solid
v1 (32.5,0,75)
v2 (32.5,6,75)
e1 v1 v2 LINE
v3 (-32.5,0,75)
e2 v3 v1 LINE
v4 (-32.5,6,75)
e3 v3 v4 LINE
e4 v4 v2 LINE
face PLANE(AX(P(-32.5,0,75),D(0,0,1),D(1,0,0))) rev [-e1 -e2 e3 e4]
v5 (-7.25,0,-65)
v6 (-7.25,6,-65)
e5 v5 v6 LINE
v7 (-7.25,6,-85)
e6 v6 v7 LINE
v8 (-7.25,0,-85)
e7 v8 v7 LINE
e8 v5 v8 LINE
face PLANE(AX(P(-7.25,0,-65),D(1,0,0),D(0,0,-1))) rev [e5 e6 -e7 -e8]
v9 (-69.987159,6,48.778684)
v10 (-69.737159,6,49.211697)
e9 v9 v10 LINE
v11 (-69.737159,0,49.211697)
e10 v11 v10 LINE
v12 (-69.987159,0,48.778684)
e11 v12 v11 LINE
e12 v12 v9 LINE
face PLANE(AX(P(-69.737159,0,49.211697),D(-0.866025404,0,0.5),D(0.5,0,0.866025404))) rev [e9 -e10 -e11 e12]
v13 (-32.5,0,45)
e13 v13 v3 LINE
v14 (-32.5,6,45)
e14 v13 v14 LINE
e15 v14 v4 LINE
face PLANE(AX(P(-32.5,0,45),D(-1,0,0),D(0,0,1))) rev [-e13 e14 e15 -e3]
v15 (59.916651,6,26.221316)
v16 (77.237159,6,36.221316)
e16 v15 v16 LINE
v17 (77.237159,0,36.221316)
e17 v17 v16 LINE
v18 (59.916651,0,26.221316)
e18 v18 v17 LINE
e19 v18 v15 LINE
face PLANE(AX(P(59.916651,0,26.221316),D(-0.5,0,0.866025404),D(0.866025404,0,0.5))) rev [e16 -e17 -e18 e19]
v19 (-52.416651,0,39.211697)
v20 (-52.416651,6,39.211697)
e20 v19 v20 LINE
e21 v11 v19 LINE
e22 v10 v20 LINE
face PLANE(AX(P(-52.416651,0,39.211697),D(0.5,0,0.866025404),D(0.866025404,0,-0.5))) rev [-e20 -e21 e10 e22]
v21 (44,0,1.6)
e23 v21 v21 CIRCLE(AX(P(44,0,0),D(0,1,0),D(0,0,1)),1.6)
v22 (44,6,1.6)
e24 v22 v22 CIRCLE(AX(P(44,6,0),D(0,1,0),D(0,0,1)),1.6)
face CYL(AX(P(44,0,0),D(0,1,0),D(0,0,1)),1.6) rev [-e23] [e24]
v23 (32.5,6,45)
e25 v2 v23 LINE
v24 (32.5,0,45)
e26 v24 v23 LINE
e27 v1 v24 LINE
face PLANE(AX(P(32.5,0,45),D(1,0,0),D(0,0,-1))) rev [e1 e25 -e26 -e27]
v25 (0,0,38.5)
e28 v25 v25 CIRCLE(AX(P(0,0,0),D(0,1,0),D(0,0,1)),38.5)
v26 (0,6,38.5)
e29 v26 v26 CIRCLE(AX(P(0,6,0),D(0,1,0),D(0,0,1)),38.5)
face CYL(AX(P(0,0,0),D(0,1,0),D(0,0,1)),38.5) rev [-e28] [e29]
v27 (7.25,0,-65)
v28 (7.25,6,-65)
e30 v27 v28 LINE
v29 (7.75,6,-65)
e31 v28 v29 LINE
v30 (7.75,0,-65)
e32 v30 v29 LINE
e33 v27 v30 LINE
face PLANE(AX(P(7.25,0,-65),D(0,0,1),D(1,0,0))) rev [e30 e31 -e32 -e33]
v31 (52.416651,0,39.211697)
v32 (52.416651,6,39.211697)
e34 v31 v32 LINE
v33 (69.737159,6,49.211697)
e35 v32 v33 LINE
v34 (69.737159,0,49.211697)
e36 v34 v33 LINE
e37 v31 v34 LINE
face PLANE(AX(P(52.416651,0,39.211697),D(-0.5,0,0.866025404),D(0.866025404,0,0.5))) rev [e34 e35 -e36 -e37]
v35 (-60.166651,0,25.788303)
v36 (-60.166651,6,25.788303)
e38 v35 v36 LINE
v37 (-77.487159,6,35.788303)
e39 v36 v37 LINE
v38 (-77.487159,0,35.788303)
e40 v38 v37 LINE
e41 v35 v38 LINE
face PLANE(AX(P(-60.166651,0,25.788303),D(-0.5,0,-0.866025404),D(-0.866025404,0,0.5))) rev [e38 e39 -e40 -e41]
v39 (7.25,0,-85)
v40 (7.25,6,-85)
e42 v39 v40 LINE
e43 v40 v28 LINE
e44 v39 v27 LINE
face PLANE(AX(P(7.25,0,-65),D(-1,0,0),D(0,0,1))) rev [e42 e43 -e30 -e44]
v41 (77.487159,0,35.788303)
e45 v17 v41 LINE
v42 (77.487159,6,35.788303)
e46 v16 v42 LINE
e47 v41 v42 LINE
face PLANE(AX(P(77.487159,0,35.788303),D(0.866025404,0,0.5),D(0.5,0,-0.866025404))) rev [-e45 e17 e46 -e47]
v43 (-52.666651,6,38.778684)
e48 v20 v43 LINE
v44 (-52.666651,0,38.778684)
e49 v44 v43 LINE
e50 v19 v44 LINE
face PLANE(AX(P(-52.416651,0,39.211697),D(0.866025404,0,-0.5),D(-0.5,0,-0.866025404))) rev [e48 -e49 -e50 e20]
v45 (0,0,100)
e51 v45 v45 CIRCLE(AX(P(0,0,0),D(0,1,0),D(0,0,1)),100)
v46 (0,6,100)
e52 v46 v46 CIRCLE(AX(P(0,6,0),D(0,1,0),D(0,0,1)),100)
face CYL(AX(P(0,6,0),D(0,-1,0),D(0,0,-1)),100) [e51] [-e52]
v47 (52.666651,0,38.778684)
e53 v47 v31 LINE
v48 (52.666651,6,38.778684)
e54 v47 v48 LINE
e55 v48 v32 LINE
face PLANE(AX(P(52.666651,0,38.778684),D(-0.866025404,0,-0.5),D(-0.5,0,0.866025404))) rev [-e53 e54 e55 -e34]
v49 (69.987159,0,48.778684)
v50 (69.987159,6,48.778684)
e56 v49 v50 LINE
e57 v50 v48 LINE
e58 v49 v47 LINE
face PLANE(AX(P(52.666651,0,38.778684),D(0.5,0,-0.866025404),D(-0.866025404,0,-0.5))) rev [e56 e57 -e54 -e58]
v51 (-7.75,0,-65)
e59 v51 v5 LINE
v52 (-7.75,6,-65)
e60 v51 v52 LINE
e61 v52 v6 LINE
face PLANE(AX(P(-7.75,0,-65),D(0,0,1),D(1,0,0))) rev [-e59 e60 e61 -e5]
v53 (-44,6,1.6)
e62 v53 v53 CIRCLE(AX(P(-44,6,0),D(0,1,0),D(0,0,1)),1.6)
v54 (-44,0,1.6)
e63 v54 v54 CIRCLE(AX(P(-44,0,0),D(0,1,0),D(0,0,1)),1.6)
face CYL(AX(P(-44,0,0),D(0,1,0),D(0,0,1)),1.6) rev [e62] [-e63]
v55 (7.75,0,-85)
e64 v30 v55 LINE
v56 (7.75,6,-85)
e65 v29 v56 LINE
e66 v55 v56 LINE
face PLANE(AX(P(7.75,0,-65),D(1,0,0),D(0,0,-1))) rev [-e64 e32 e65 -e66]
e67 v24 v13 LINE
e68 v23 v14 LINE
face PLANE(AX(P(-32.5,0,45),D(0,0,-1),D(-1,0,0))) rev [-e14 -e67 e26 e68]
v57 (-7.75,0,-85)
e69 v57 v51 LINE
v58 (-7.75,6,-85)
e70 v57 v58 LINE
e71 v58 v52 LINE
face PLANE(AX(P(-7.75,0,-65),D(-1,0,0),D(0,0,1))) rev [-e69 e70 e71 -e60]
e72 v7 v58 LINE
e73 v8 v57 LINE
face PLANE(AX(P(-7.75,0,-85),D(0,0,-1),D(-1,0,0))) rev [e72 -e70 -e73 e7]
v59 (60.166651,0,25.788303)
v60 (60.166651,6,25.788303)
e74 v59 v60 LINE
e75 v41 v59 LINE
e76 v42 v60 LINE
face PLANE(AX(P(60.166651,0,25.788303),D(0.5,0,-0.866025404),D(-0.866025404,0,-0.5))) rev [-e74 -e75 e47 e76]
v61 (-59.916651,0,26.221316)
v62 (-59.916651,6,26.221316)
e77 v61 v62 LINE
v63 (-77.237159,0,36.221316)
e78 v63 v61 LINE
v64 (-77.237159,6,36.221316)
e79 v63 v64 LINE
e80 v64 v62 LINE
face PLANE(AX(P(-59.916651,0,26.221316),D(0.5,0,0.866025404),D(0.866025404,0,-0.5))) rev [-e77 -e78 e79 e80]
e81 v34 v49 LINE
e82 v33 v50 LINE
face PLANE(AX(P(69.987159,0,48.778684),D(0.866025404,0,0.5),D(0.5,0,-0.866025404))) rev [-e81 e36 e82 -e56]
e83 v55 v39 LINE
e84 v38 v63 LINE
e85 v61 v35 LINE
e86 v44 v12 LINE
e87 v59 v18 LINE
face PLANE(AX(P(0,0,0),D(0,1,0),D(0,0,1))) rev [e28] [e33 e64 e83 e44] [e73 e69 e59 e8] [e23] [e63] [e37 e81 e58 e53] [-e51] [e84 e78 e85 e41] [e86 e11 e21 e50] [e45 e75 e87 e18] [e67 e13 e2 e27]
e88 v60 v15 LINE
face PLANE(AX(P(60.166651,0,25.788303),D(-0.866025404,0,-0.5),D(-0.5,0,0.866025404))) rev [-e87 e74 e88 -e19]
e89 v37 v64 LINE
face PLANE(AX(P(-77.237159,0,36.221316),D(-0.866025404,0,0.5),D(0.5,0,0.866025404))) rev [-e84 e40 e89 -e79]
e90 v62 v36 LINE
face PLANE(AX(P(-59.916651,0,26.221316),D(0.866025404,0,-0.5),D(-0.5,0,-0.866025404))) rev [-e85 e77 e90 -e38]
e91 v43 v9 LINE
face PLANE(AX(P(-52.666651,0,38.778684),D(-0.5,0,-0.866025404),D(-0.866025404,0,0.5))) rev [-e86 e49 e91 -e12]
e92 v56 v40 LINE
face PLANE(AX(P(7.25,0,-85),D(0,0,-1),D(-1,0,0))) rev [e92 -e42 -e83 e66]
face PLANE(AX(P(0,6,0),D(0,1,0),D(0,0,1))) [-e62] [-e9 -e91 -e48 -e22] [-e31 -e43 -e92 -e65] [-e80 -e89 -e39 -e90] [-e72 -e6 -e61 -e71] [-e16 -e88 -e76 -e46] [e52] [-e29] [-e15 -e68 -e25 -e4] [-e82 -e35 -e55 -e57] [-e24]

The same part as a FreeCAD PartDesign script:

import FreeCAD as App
import Part
import Sketcher

V = App.Vector
Q = App.Units.Quantity

doc = App.newDocument("Part")
body = doc.addObject("PartDesign::Body", "Body")

# Sketch on XZ plane
sketch1 = body.newObject("Sketcher::SketchObject", "Sketch")
sketch1.AttachmentSupport = (doc.getObject("XZ_Plane"), [""])
sketch1.MapMode = "FlatFace"
sketch1.addGeometry(Part.Circle(V(0, 0, 0), V(0, 0, 1), 100), False)
sketch1.addConstraint([
    Sketcher.Constraint("Coincident", 0, 3, -1, 1),
    Sketcher.Constraint("Diameter", 0, 200.0),
])
pad1 = body.newObject("PartDesign::Pad", "Pad")
pad1.Profile = sketch1
pad1.Length = 6
pad1.Reversed = True

# Sketch on XZ plane
sketch2 = body.newObject("Sketcher::SketchObject", "Sketch001")
sketch2.AttachmentSupport = (doc.getObject("XZ_Plane"), [""])
sketch2.MapMode = "FlatFace"
sketch2.AttachmentOffset = App.Placement(V(0, 0, -6), App.Rotation())
sketch2.addGeometry([
    Part.LineSegment(V(-7.8, -85, 0), V(-7.8, -65, 0)),  # 0
    Part.LineSegment(V(-7.8, -65, 0), V(-7.2, -65, 0)),  # 1
    Part.LineSegment(V(-7.2, -65, 0), V(-7.2, -85, 0)),  # 2
    Part.LineSegment(V(-7.2, -85, 0), V(-7.8, -85, 0)),  # 3
    Part.LineSegment(V(7.2, -85, 0), V(7.2, -65, 0)),  # 4
    Part.LineSegment(V(7.2, -65, 0), V(7.8, -65, 0)),  # 5
    Part.LineSegment(V(7.8, -65, 0), V(7.8, -85, 0)),  # 6
    Part.LineSegment(V(7.8, -85, 0), V(7.2, -85, 0)),  # 7
    Part.LineSegment(V(77.5, 35.8, 0), V(60.2, 25.8, 0)),  # 8
    Part.LineSegment(V(60.2, 25.8, 0), V(59.9, 26.2, 0)),  # 9
    Part.LineSegment(V(59.9, 26.2, 0), V(77.2, 36.2, 0)),  # 10
    Part.LineSegment(V(77.2, 36.2, 0), V(77.5, 35.8, 0)),  # 11
    Part.LineSegment(V(70, 48.8, 0), V(52.7, 38.8, 0)),  # 12
    Part.LineSegment(V(52.7, 38.8, 0), V(52.4, 39.2, 0)),  # 13
    Part.LineSegment(V(52.4, 39.2, 0), V(69.7, 49.2, 0)),  # 14
    Part.LineSegment(V(69.7, 49.2, 0), V(70, 48.8, 0)),  # 15
    Part.LineSegment(V(-69.7, 49.2, 0), V(-52.4, 39.2, 0)),  # 16
    Part.LineSegment(V(-52.4, 39.2, 0), V(-52.7, 38.8, 0)),  # 17
    Part.LineSegment(V(-52.7, 38.8, 0), V(-70, 48.8, 0)),  # 18
    Part.LineSegment(V(-70, 48.8, 0), V(-69.7, 49.2, 0)),  # 19
    Part.LineSegment(V(-77.2, 36.2, 0), V(-59.9, 26.2, 0)),  # 20
    Part.LineSegment(V(-59.9, 26.2, 0), V(-60.2, 25.8, 0)),  # 21
    Part.LineSegment(V(-60.2, 25.8, 0), V(-77.5, 35.8, 0)),  # 22
    Part.LineSegment(V(-77.5, 35.8, 0), V(-77.2, 36.2, 0)),  # 23
], False)
sketch2.addConstraint([
    Sketcher.Constraint("Coincident", 0, 2, 1, 1),
    Sketcher.Constraint("Coincident", 1, 2, 2, 1),
    Sketcher.Constraint("Coincident", 2, 2, 3, 1),
    Sketcher.Constraint("Coincident", 3, 2, 0, 1),
    Sketcher.Constraint("Coincident", 4, 2, 5, 1),
    Sketcher.Constraint("Coincident", 5, 2, 6, 1),
    Sketcher.Constraint("Coincident", 6, 2, 7, 1),
    Sketcher.Constraint("Coincident", 7, 2, 4, 1),
    Sketcher.Constraint("Coincident", 8, 2, 9, 1),
    Sketcher.Constraint("Coincident", 9, 2, 10, 1),
    Sketcher.Constraint("Coincident", 10, 2, 11, 1),
    Sketcher.Constraint("Coincident", 11, 2, 8, 1),
    Sketcher.Constraint("Coincident", 12, 2, 13, 1),
    Sketcher.Constraint("Coincident", 13, 2, 14, 1),
    Sketcher.Constraint("Coincident", 14, 2, 15, 1),
    Sketcher.Constraint("Coincident", 15, 2, 12, 1),
    Sketcher.Constraint("Coincident", 16, 2, 17, 1),
    Sketcher.Constraint("Coincident", 17, 2, 18, 1),
    Sketcher.Constraint("Coincident", 18, 2, 19, 1),
    Sketcher.Constraint("Coincident", 19, 2, 16, 1),
    Sketcher.Constraint("Coincident", 20, 2, 21, 1),
    Sketcher.Constraint("Coincident", 21, 2, 22, 1),
    Sketcher.Constraint("Coincident", 22, 2, 23, 1),
    Sketcher.Constraint("Coincident", 23, 2, 20, 1),
    Sketcher.Constraint("Vertical", 0),
    Sketcher.Constraint("Horizontal", 1),
    Sketcher.Constraint("Vertical", 2),
    Sketcher.Constraint("Horizontal", 3),
    Sketcher.Constraint("Vertical", 4),
    Sketcher.Constraint("Horizontal", 5),
    Sketcher.Constraint("Vertical", 6),
    Sketcher.Constraint("Horizontal", 7),
    Sketcher.Constraint("Symmetric", 1, 2, 4, 2, -2),
    Sketcher.Constraint("Symmetric", 3, 2, 6, 2, -2),
    Sketcher.Constraint("Symmetric", 13, 2, 16, 2, -2),
    Sketcher.Constraint("Symmetric", 12, 2, 17, 2, -2),
    Sketcher.Constraint("Symmetric", 15, 2, 18, 2, -2),
    Sketcher.Constraint("Symmetric", 14, 2, 19, 2, -2),
    Sketcher.Constraint("Symmetric", 9, 2, 20, 2, -2),
    Sketcher.Constraint("Symmetric", 8, 2, 21, 2, -2),
    Sketcher.Constraint("Symmetric", 11, 2, 22, 2, -2),
    Sketcher.Constraint("Symmetric", 10, 2, 23, 2, -2),
    Sketcher.Constraint("Perpendicular", 8, 9),
    Sketcher.Constraint("Perpendicular", 9, 10),
    Sketcher.Constraint("Perpendicular", 10, 11),
    Sketcher.Constraint("Perpendicular", 11, 12),
    Sketcher.Constraint("Perpendicular", 12, 13),
    Sketcher.Constraint("Perpendicular", 13, 14),
    Sketcher.Constraint("Perpendicular", 14, 15),
    Sketcher.Constraint("Equal", 10, 12),
    Sketcher.Constraint("Equal", 11, 13),
    Sketcher.Constraint("DistanceY", 0, 1, 0, 2, 20.0),
    Sketcher.Constraint("Angle", 8, Q("-150 deg")),
    Sketcher.Constraint("Distance", 8, 20.0),
    Sketcher.Constraint("DistanceX", 1, 1, 1, 2, 0.5),
    Sketcher.Constraint("DistanceY", 0, 2, -1, 1, 65.0),
    Sketcher.Constraint("DistanceX", 0, 2, 4, 2, 15.0),
    Sketcher.Constraint("Distance", 9, 0.5),
    Sketcher.Constraint("DistanceX", 12, 2, 8, 2, 7.5),
    Sketcher.Constraint("DistanceX", -1, 1, 8, 2, 60.166651),
    Sketcher.Constraint("DistanceY", 9, 2, 12, 2, 12.557368),
    Sketcher.Constraint("DistanceY", -1, 1, 8, 2, 25.788303),
])
pocket1 = body.newObject("PartDesign::Pocket", "Pocket")
pocket1.Profile = sketch2
pocket1.Type = "ThroughAll"
pocket1.Reversed = True

# Sketch on XZ plane
sketch3 = body.newObject("Sketcher::SketchObject", "Sketch002")
sketch3.AttachmentSupport = (doc.getObject("XZ_Plane"), [""])
sketch3.MapMode = "FlatFace"
sketch3.AttachmentOffset = App.Placement(V(0, 0, -6), App.Rotation())
sketch3.addGeometry(Part.Circle(V(0, 0, 0), V(0, 0, 1), 38), False)
sketch3.addConstraint([
    Sketcher.Constraint("Coincident", 0, 3, -1, 1),
    Sketcher.Constraint("Diameter", 0, 77.0),
])
pocket2 = body.newObject("PartDesign::Pocket", "Pocket001")
pocket2.Profile = sketch3
pocket2.Type = "ThroughAll"
pocket2.Reversed = True

# Sketch on XZ plane
sketch4 = body.newObject("Sketcher::SketchObject", "Sketch003")
sketch4.AttachmentSupport = (doc.getObject("XZ_Plane"), [""])
sketch4.MapMode = "FlatFace"
sketch4.AttachmentOffset = App.Placement(V(0, 0, -6), App.Rotation())
sketch4.addGeometry([
    Part.Circle(V(-44, 0, 0), V(0, 0, 1), 1.6),
    Part.Circle(V(44, 0, 0), V(0, 0, 1), 1.6),
], False)
sketch4.addConstraint([
    Sketcher.Constraint("Equal", 0, 1),
    Sketcher.Constraint("Symmetric", 0, 3, 1, 3, -1, 1),
    Sketcher.Constraint("PointOnObject", 0, 3, -1),
    Sketcher.Constraint("Diameter", 0, 3.2),
    Sketcher.Constraint("DistanceX", 0, 3, -1, 1, 44.0),
])
pocket3 = body.newObject("PartDesign::Pocket", "Pocket002")
pocket3.Profile = sketch4
pocket3.Type = "ThroughAll"
pocket3.Reversed = True

# Sketch on XZ plane
sketch5 = body.newObject("Sketcher::SketchObject", "Sketch004")
sketch5.AttachmentSupport = (doc.getObject("XZ_Plane"), [""])
sketch5.MapMode = "FlatFace"
sketch5.AttachmentOffset = App.Placement(V(0, 0, -6), App.Rotation())
sketch5.addGeometry([
    Part.LineSegment(V(-32, 45, 0), V(-32, 75, 0)),
    Part.LineSegment(V(-32, 75, 0), V(32, 75, 0)),
    Part.LineSegment(V(32, 75, 0), V(32, 45, 0)),
    Part.LineSegment(V(32, 45, 0), V(-32, 45, 0)),
], False)
sketch5.addConstraint([
    Sketcher.Constraint("Coincident", 0, 2, 1, 1),
    Sketcher.Constraint("Coincident", 1, 2, 2, 1),
    Sketcher.Constraint("Coincident", 2, 2, 3, 1),
    Sketcher.Constraint("Coincident", 3, 2, 0, 1),
    Sketcher.Constraint("Vertical", 0),
    Sketcher.Constraint("Horizontal", 1),
    Sketcher.Constraint("Vertical", 2),
    Sketcher.Constraint("Horizontal", 3),
    Sketcher.Constraint("DistanceX", 1, 1, 1, 2, 65.0),
    Sketcher.Constraint("DistanceY", 0, 1, 0, 2, 30.0),
    Sketcher.Constraint("DistanceY", -1, 1, 0, 2, 75.0),
    Sketcher.Constraint("DistanceX", 0, 2, -1, 1, 32.5),
])
pocket4 = body.newObject("PartDesign::Pocket", "Pocket003")
pocket4.Profile = sketch5
pocket4.Type = "ThroughAll"
pocket4.Reversed = True

doc.recompute()
